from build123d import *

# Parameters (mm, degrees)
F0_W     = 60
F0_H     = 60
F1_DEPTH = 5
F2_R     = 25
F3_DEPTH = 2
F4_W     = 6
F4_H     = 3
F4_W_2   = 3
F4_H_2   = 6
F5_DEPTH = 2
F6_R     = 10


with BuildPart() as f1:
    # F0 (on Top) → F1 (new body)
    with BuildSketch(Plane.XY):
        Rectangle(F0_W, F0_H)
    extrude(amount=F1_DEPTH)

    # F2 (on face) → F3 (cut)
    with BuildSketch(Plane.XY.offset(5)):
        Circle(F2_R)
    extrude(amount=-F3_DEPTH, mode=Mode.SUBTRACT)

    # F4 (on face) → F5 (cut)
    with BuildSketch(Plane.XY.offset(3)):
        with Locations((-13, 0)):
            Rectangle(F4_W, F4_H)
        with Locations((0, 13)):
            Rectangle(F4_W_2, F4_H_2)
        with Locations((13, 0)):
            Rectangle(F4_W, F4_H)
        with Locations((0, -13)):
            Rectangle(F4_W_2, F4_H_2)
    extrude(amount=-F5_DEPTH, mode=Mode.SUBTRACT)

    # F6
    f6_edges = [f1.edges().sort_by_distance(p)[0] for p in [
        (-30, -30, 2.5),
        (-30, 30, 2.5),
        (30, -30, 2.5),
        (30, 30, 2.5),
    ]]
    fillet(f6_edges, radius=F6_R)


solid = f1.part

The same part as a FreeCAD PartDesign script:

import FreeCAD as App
import Part
import Sketcher

V = App.Vector


def edges_at(feature, points):
    """Names of the edges that pass closest to the given points."""
    edges = feature.Shape.Edges
    near = lambda p: min(range(len(edges)), key=lambda i: edges[i].distToShape(Part.Vertex(*p))[0])
    return sorted({f"Edge{near(p) + 1}" for p in points})


def add_polygon(sketch, points):
    """Adds a closed chain of lines whose ends are joined by coincident constraints."""
    first, n = sketch.GeometryCount, len(points)
    for a, b in zip(points, points[1:] + points[:1]):
        sketch.addGeometry(Part.LineSegment(App.Vector(*a, 0), App.Vector(*b, 0)), False)
    for i in range(n):
        sketch.addConstraint(Sketcher.Constraint("Coincident", first + i, 2, first + (i + 1) % n, 1))

doc = App.newDocument("Part")
body = doc.addObject("PartDesign::Body", "Body")

sketch1 = body.newObject("Sketcher::SketchObject", "Sketch")
sketch1.AttachmentSupport = (doc.getObject("XY_Plane"), [""])
sketch1.MapMode = "FlatFace"
add_polygon(sketch1, [(-30, 30), (-30, -30), (30, -30), (30, 30)])
sketch1.addConstraint([
    Sketcher.Constraint("Vertical", 0),
    Sketcher.Constraint("Horizontal", 1),
    Sketcher.Constraint("Vertical", 2),
    Sketcher.Constraint("Horizontal", 3),
    Sketcher.Constraint("Symmetric", 0, 2, 2, 2, -1, 1),
    Sketcher.Constraint("Equal", 3, 0),
    Sketcher.Constraint("DistanceX", 1, 1, 1, 2, 60.0),
])
pad1 = body.newObject("PartDesign::Pad", "Pad")
pad1.Profile = sketch1
pad1.Length = 5

sketch2 = body.newObject("Sketcher::SketchObject", "Sketch001")
sketch2.AttachmentSupport = (doc.getObject("XY_Plane"), [""])
sketch2.MapMode = "FlatFace"
sketch2.AttachmentOffset = App.Placement(V(0, 0, 5), App.Rotation())
sketch2.addGeometry(Part.Circle(V(0, 0, 0), V(0, 0, 1), 25), False)
sketch2.addConstraint([
    Sketcher.Constraint("Coincident", 0, 3, -1, 1),
    Sketcher.Constraint("Diameter", 0, 50.0),
])
pocket1 = body.newObject("PartDesign::Pocket", "Pocket")
pocket1.Profile = sketch2
pocket1.Length = 2

sketch3 = body.newObject("Sketcher::SketchObject", "Sketch002")
sketch3.AttachmentSupport = (doc.getObject("XY_Plane"), [""])
sketch3.MapMode = "FlatFace"
sketch3.AttachmentOffset = App.Placement(V(0, 0, 3), App.Rotation())
add_polygon(sketch3, [(-16, 1.5), (-16, -1.5), (-10, -1.5), (-10, 1.5)])
add_polygon(sketch3, [(-1.5, 16), (-1.5, 10), (1.5, 10), (1.5, 16)])
add_polygon(sketch3, [(10, 1.5), (10, -1.5), (16, -1.5), (16, 1.5)])
add_polygon(sketch3, [(-1.5, -10), (-1.5, -16), (1.5, -16), (1.5, -10)])
sketch3.addConstraint([
    Sketcher.Constraint("Vertical", 0),
    Sketcher.Constraint("Horizontal", 1),
    Sketcher.Constraint("Vertical", 2),
    Sketcher.Constraint("Horizontal", 3),
    Sketcher.Constraint("Vertical", 4),
    Sketcher.Constraint("Horizontal", 5),
    Sketcher.Constraint("Vertical", 6),
    Sketcher.Constraint("Horizontal", 7),
    Sketcher.Constraint("Vertical", 8),
    Sketcher.Constraint("Horizontal", 9),
    Sketcher.Constraint("Vertical", 10),
    Sketcher.Constraint("Horizontal", 11),
    Sketcher.Constraint("Vertical", 12),
    Sketcher.Constraint("Horizontal", 13),
    Sketcher.Constraint("Vertical", 14),
    Sketcher.Constraint("Horizontal", 15),
    Sketcher.Constraint("Symmetric", 2, 2, 8, 2, -1, 1),
    Sketcher.Constraint("Symmetric", 0, 2, 10, 2, -1, 1),
    Sketcher.Constraint("Symmetric", 6, 2, 12, 2, -1, 1),
    Sketcher.Constraint("Symmetric", 4, 2, 14, 2, -1, 1),
    Sketcher.Constraint("Horizontal", 1, 2, 8, 2),
    Sketcher.Constraint("Vertical", 7, 2, 12, 2),
    Sketcher.Constraint("Equal", 15, 0),
    Sketcher.Constraint("Equal", 11, 4),
    Sketcher.Constraint("DistanceX", 1, 1, 1, 2, 6.0),
    Sketcher.Constraint("DistanceX", 5, 1, 5, 2, 3.0),
    Sketcher.Constraint("DistanceX", 0, 2, -1, 1, 16.0),
    Sketcher.Constraint("DistanceY", -1, 1, 4, 2, 10.0),
])
pocket2 = body.newObject("PartDesign::Pocket", "Pocket001")
pocket2.Profile = sketch3
pocket2.Length = 2
doc.recompute()

fillet = body.newObject("PartDesign::Fillet", "Fillet")
fillet.Base = (pocket2, edges_at(pocket2, [
    (-30, -30, 2.5),
    (-30, 30, 2.5),
    (30, -30, 2.5),
    (30, 30, 2.5),
]))
fillet.Radius = 10

doc.recompute()
